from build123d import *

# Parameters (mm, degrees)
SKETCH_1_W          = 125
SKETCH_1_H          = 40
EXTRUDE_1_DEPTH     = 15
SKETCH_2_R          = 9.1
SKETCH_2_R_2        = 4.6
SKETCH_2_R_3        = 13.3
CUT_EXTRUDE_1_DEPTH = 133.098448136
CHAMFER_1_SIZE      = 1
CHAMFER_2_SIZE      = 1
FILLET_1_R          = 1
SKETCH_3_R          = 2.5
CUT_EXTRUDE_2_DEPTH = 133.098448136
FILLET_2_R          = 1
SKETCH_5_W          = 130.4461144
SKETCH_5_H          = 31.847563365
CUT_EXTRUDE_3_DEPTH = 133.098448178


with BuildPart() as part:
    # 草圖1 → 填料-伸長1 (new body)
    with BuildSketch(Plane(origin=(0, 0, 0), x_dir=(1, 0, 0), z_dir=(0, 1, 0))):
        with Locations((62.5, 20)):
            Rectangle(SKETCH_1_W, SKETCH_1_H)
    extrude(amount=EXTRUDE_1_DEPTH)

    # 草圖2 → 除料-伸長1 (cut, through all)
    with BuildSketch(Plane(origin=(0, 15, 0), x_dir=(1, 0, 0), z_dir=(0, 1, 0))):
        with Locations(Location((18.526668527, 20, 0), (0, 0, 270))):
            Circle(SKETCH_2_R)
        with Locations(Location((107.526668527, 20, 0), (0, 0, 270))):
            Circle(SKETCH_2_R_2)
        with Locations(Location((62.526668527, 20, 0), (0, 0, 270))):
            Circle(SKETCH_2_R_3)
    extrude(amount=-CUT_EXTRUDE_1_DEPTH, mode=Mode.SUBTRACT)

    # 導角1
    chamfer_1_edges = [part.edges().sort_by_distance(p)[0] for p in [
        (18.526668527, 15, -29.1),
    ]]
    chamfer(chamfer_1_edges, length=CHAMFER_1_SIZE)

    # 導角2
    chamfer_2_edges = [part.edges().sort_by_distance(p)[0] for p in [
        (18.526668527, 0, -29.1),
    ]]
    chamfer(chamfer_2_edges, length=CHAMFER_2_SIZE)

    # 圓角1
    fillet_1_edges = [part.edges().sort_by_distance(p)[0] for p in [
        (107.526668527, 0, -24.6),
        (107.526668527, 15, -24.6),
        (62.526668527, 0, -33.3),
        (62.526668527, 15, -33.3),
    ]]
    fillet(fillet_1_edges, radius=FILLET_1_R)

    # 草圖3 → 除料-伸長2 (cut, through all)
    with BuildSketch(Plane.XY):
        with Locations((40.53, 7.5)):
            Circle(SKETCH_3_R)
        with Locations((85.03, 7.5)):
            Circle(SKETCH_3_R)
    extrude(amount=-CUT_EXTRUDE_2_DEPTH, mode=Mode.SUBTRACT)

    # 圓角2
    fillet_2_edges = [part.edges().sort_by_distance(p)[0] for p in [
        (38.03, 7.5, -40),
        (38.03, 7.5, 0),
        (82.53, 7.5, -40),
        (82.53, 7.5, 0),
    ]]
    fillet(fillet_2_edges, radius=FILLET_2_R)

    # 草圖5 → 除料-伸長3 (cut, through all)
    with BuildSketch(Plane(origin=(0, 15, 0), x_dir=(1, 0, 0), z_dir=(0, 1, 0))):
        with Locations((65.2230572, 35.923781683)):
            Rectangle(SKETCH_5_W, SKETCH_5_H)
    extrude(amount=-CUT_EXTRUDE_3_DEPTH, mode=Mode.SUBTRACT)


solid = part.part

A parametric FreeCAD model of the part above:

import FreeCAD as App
import Part
import Sketcher
from FreeCAD import Vector


def edges_at(feature, points):
    """Names of the edges that pass closest to the given points."""
    edges = feature.Shape.Edges
    near = lambda p: min(range(len(edges)), key=lambda i: edges[i].distToShape(Part.Vertex(*p))[0])
    return sorted({f"Edge{near(p) + 1}" for p in points})


def add_polygon(sketch, points):
    """Adds a closed chain of lines whose ends are joined by coincident constraints."""
    first, n = sketch.GeometryCount, len(points)
    for a, b in zip(points, points[1:] + points[:1]):
        sketch.addGeometry(Part.LineSegment(App.Vector(*a, 0), App.Vector(*b, 0)), False)
    for i in range(n):
        sketch.addConstraint(Sketcher.Constraint("Coincident", first + i, 2, first + (i + 1) % n, 1))

doc = App.newDocument("Part")
body = doc.addObject("PartDesign::Body", "Body")

# Sketch on XZ plane
sketch1 = body.newObject("Sketcher::SketchObject", "Sketch")
sketch1.AttachmentSupport = (doc.getObject("XZ_Plane"), [""])
sketch1.MapMode = "FlatFace"
add_polygon(sketch1, [(0, -40), (0, 0), (125, 0), (125, -40)])  # lines 0-3
sketch1.addConstraint([
    Sketcher.Constraint("Vertical", 0),
    Sketcher.Constraint("Horizontal", 1),
    Sketcher.Constraint("Vertical", 2),
    Sketcher.Constraint("Horizontal", 3),
    Sketcher.Constraint("Coincident", 0, 2, -1, 1),
    Sketcher.Constraint("DistanceX", 1, 1, 1, 2, 125.0),
    Sketcher.Constraint("DistanceY", 0, 1, 0, 2, 40.0),
])
pad1 = body.newObject("PartDesign::Pad", "Pad")
pad1.Profile = sketch1
pad1.Length = 15
pad1.Reversed = True

# Sketch on XZ plane
sketch2 = body.newObject("Sketcher::SketchObject", "Sketch001")
sketch2.AttachmentSupport = (doc.getObject("XZ_Plane"), [""])
sketch2.MapMode = "FlatFace"
sketch2.AttachmentOffset = App.Placement(Vector(0, 0, -15), App.Rotation())
sketch2.addGeometry([
    Part.Circle(Vector(18.5, -20, 0), Vector(0, 0, 1), 9.1),
    Part.Circle(Vector(107.5, -20, 0), Vector(0, 0, 1), 4.6),
    Part.Circle(Vector(62.5, -20, 0), Vector(0, 0, 1), 13.3),
], False)
sketch2.addConstraint([
    Sketcher.Constraint("Horizontal", 0, 3, 1, 3),
    Sketcher.Constraint("Horizontal", 1, 3, 2, 3),
    Sketcher.Constraint("Diameter", 0, 18.2),
    Sketcher.Constraint("Diameter", 1, 9.2),
    Sketcher.Constraint("Diameter", 2, 26.6),
    Sketcher.Constraint("DistanceY", 0, 3, -1, 1, 20.0),
    Sketcher.Constraint("DistanceX", 0, 3, 1, 3, 89.0),
    Sketcher.Constraint("DistanceX", 0, 3, 2, 3, 44.0),
    Sketcher.Constraint("DistanceX", -1, 1, 0, 3, 18.526669),
])
pocket1 = body.newObject("PartDesign::Pocket", "Pocket")
pocket1.Profile = sketch2
pocket1.Type = "ThroughAll"
pocket1.Reversed = True
doc.recompute()

chamfer = body.newObject("PartDesign::Chamfer", "Chamfer")
chamfer.Base = (pocket1, edges_at(pocket1, [(18.527, 15, -29.1)]))
chamfer.Size = 1
doc.recompute()

chamfer2 = body.newObject("PartDesign::Chamfer", "Chamfer001")
chamfer2.Base = (chamfer, edges_at(chamfer, [(18.527, 0, -29.1)]))
chamfer2.Size = 1
doc.recompute()

fillet = body.newObject("PartDesign::Fillet", "Fillet")
fillet.Base = (chamfer2, edges_at(chamfer2, [
    (107.527, 0, -24.6),
    (107.527, 15, -24.6),
    (62.527, 0, -33.3),
    (62.527, 15, -33.3),
]))
fillet.Radius = 1

# Sketch on XY plane
sketch3 = body.newObject("Sketcher::SketchObject", "Sketch002")
sketch3.AttachmentSupport = (doc.getObject("XY_Plane"), [""])
sketch3.MapMode = "FlatFace"
sketch3.addGeometry([
    Part.Circle(Vector(40.5, 7.5, 0), Vector(0, 0, 1), 2.5),
    Part.Circle(Vector(85, 7.5, 0), Vector(0, 0, 1), 2.5),
], False)
sketch3.addConstraint([
    Sketcher.Constraint("Equal", 0, 1),
    Sketcher.Constraint("Horizontal", 0, 3, 1, 3),
    Sketcher.Constraint("Diameter", 0, 5.0),
    Sketcher.Constraint("DistanceY", -1, 1, 0, 3, 7.5),
    Sketcher.Constraint("DistanceX", 0, 3, 1, 3, 44.5),
    Sketcher.Constraint("DistanceX", -1, 1, 0, 3, 40.53),
])
pocket2 = body.newObject("PartDesign::Pocket", "Pocket001")
pocket2.Profile = sketch3
pocket2.Type = "ThroughAll"
doc.recompute()

fillet2 = body.newObject("PartDesign::Fillet", "Fillet001")
fillet2.Base = (pocket2, edges_at(pocket2, [
    (38.03, 7.5, -40),
    (38.03, 7.5, 0),
    (82.53, 7.5, -40),
    (82.53, 7.5, 0),
]))
fillet2.Radius = 1

# Sketch on XZ plane
sketch4 = body.newObject("Sketcher::SketchObject", "Sketch003")
sketch4.AttachmentSupport = (doc.getObject("XZ_Plane"), [""])
sketch4.MapMode = "FlatFace"
sketch4.AttachmentOffset = App.Placement(Vector(0, 0, -15), App.Rotation())
add_polygon(sketch4, [(0, -52), (0, -20), (130, -20), (130, -52)])  # lines 0-3
sketch4.addConstraint([
    Sketcher.Constraint("Vertical", 0),
    Sketcher.Constraint("Horizontal", 1),
    Sketcher.Constraint("Vertical", 2),
    Sketcher.Constraint("Horizontal", 3),
    Sketcher.Constraint("PointOnObject", 0, 2, -2),
    Sketcher.Constraint("DistanceY", 0, 2, -1, 1, 20.0),
    Sketcher.Constraint("DistanceX", 1, 1, 1, 2, 130.446114),
    Sketcher.Constraint("DistanceY", 0, 1, 0, 2, 31.847563),
])
pocket3 = body.newObject("PartDesign::Pocket", "Pocket002")
pocket3.Profile = sketch4
pocket3.Type = "ThroughAll"
pocket3.Reversed = True

doc.recompute()
